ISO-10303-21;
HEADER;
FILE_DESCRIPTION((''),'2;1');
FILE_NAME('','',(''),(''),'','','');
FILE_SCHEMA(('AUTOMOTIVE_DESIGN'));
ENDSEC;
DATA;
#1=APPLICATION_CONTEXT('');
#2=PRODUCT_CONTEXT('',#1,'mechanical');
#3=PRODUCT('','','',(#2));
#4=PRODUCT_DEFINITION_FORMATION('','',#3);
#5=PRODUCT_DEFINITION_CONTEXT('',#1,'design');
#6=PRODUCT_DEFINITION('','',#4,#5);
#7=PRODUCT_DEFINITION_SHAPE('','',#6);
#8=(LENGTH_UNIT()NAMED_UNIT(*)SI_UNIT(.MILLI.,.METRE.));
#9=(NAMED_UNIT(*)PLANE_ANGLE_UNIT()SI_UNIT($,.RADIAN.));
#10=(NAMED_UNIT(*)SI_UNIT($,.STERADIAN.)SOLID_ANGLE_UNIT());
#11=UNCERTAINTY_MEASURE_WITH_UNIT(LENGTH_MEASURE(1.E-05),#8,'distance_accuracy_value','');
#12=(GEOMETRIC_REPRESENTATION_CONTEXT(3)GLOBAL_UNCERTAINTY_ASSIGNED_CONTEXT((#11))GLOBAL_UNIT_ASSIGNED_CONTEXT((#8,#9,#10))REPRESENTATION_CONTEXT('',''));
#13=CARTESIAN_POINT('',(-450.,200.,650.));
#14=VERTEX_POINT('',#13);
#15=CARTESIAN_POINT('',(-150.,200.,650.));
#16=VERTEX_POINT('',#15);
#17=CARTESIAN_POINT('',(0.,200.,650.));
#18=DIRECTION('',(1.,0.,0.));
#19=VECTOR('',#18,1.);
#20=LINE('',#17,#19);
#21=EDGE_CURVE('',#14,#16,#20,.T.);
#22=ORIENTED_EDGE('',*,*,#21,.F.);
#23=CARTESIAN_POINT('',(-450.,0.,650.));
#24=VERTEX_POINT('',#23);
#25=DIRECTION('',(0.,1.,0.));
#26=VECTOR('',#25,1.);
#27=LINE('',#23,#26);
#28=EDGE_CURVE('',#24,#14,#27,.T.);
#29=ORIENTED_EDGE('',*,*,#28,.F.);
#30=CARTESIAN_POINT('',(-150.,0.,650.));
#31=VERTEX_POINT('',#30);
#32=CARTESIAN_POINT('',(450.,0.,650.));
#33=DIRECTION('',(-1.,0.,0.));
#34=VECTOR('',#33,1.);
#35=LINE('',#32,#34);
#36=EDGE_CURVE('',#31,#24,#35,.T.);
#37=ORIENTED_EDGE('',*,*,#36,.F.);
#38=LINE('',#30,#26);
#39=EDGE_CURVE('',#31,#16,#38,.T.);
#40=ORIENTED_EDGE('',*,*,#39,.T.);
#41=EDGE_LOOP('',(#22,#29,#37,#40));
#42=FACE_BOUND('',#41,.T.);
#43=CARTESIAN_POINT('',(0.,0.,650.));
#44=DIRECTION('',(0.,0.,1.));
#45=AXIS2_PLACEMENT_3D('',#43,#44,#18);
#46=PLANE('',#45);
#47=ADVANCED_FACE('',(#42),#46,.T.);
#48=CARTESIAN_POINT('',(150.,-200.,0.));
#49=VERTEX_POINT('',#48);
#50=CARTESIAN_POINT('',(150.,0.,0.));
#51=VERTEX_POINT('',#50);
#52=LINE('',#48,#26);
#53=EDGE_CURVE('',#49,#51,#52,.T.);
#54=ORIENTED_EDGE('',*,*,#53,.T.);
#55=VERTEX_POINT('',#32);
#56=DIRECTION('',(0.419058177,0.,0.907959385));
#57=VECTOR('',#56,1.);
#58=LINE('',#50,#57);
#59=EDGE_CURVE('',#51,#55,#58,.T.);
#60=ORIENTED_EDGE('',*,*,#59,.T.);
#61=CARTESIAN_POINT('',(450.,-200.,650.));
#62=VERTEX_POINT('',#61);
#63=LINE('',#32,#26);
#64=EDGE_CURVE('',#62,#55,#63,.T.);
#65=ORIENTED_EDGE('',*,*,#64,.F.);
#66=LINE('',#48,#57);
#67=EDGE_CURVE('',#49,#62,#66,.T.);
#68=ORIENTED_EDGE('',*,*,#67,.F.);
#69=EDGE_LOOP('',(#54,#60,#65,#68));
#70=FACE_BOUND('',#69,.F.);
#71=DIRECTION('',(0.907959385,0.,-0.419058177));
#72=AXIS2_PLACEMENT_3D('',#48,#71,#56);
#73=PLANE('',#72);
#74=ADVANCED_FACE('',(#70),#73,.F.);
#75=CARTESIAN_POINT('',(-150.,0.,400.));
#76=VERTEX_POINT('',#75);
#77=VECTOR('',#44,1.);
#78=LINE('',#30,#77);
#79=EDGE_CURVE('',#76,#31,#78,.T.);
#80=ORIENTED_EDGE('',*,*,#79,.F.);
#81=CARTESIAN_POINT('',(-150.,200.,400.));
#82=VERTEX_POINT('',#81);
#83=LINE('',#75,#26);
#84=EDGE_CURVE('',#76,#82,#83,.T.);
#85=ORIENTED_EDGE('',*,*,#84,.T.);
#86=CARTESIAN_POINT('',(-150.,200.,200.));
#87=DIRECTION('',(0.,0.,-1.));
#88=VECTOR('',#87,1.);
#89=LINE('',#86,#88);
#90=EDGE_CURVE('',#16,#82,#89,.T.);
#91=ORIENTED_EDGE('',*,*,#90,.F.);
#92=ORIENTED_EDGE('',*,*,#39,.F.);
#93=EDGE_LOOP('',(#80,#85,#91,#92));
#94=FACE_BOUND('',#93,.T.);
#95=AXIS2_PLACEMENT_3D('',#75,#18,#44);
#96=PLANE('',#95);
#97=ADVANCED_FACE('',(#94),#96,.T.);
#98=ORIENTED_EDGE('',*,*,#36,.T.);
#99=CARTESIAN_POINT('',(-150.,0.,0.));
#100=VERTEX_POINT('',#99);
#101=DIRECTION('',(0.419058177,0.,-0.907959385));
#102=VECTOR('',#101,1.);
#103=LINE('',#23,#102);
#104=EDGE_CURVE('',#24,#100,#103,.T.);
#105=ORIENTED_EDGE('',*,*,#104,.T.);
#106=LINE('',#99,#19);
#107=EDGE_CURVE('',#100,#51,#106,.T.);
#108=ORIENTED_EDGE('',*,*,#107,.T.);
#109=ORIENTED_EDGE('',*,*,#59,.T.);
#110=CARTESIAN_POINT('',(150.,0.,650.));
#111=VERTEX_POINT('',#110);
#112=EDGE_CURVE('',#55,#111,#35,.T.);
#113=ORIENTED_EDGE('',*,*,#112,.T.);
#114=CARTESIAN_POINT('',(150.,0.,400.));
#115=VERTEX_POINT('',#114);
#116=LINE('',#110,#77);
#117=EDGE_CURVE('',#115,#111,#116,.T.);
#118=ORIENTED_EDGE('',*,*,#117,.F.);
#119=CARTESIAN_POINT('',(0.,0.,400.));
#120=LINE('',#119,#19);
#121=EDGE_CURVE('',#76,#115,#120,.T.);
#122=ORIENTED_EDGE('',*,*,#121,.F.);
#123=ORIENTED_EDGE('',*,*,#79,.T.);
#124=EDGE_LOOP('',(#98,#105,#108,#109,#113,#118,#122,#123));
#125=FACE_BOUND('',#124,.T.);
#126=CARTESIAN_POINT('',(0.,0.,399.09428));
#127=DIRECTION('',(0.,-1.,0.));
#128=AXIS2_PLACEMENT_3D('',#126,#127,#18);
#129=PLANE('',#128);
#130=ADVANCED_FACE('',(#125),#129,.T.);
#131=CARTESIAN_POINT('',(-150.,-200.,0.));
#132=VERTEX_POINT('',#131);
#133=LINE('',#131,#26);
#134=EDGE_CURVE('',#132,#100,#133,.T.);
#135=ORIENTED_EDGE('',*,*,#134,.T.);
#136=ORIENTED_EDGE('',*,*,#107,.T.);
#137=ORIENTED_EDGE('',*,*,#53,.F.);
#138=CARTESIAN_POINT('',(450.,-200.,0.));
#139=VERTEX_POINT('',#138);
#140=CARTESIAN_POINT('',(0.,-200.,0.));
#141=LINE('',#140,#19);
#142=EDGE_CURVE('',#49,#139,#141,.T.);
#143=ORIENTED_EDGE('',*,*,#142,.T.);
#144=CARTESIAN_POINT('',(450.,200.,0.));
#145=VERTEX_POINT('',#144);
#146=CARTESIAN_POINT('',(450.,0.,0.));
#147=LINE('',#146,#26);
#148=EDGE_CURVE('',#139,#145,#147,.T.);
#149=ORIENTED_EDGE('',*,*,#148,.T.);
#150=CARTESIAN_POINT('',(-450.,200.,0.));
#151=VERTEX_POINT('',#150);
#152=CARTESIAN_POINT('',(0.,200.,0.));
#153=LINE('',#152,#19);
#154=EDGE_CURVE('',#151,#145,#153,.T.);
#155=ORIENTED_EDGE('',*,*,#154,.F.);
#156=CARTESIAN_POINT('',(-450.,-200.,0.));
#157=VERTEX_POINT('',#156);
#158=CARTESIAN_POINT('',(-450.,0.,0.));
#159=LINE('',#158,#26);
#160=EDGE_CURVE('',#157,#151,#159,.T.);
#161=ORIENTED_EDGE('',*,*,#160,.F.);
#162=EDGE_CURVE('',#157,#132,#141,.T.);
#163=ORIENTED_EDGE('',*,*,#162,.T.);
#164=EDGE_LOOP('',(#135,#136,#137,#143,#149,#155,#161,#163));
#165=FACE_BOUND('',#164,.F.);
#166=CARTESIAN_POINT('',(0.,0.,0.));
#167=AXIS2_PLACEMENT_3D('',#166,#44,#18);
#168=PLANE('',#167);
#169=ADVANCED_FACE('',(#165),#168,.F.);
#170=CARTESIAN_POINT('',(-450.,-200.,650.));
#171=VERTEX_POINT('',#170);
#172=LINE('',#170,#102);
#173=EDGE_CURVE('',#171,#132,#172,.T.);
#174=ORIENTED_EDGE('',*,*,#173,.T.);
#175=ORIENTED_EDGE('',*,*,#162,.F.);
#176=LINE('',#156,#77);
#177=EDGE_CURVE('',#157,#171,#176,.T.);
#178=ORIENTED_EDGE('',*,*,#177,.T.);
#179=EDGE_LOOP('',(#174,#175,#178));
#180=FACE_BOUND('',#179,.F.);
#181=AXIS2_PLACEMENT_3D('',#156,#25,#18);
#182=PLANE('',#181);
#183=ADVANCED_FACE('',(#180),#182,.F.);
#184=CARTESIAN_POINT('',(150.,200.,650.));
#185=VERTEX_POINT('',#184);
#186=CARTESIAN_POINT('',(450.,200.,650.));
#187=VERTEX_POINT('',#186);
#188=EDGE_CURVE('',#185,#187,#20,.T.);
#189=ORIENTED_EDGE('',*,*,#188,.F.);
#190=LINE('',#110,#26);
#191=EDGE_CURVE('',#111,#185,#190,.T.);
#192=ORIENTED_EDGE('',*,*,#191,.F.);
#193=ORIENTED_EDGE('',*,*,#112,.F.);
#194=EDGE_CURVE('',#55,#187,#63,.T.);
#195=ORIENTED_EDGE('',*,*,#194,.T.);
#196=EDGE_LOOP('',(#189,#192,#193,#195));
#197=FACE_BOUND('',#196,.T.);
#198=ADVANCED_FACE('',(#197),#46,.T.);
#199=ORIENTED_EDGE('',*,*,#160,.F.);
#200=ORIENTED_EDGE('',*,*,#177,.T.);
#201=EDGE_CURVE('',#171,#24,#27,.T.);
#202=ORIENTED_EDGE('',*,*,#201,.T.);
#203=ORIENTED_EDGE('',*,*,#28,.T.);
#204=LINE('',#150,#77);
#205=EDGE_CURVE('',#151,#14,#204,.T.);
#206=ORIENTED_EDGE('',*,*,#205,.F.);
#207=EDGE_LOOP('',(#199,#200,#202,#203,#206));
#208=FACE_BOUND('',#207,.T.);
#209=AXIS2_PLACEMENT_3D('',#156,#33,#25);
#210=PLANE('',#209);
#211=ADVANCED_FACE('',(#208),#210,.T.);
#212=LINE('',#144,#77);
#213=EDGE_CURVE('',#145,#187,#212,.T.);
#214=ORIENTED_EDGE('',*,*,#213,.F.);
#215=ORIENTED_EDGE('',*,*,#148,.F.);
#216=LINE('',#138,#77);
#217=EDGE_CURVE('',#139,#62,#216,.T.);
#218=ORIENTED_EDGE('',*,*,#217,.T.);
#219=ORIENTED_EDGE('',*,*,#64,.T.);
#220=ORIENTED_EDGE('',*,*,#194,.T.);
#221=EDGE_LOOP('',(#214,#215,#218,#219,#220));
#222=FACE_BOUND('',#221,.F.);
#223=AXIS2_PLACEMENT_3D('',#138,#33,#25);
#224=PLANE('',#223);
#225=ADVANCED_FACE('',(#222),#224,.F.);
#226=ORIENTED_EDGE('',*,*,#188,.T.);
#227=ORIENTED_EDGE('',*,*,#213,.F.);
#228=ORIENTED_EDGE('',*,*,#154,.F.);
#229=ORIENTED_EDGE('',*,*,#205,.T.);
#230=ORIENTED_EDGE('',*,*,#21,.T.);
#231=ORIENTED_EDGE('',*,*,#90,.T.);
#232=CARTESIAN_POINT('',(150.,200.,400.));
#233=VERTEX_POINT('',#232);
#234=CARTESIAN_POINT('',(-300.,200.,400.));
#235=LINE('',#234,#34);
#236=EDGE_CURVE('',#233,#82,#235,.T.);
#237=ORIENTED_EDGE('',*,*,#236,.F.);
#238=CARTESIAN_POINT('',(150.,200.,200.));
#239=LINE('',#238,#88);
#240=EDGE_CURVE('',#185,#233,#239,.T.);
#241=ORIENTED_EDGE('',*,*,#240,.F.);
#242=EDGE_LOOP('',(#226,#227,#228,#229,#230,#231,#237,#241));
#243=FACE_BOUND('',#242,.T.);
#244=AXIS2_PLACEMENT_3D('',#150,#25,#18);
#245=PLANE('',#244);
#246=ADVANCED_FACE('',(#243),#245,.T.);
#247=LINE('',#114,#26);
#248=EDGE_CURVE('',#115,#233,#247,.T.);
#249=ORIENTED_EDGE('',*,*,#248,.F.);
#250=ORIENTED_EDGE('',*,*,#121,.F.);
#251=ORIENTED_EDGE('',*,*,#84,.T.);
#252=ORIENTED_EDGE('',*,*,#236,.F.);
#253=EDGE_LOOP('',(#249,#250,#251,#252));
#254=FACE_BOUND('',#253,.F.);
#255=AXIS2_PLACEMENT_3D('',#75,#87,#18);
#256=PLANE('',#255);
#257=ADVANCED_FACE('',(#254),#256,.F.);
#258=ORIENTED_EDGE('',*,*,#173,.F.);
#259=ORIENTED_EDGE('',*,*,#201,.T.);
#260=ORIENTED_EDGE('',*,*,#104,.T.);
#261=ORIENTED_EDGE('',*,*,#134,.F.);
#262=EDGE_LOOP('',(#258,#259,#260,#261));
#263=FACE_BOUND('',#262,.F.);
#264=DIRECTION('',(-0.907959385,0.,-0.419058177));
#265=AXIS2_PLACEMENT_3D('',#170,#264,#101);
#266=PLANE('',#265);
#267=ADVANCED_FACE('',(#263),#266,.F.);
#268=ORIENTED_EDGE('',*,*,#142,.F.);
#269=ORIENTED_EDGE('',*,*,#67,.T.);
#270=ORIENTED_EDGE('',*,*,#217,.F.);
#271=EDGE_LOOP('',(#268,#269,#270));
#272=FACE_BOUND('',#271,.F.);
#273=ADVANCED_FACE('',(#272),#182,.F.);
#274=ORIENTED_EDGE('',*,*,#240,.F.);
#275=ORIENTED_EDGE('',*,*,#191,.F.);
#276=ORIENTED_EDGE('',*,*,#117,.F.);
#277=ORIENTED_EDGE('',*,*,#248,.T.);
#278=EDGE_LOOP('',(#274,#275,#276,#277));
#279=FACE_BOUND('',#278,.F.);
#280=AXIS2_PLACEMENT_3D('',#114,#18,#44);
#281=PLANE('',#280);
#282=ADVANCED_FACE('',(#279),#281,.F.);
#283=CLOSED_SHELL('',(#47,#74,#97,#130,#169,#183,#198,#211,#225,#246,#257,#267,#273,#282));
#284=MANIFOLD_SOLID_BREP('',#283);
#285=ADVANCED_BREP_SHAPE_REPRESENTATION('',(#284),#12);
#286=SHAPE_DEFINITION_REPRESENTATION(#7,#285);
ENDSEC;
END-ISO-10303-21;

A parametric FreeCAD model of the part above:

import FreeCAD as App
import Part
import Sketcher
from FreeCAD import Vector
Q = App.Units.Quantity


def add_polygon(sketch, points):
    """Adds a closed chain of lines whose ends are joined by coincident constraints."""
    first, n = sketch.GeometryCount, len(points)
    for a, b in zip(points, points[1:] + points[:1]):
        sketch.addGeometry(Part.LineSegment(App.Vector(*a, 0), App.Vector(*b, 0)), False)
    for i in range(n):
        sketch.addConstraint(Sketcher.Constraint("Coincident", first + i, 2, first + (i + 1) % n, 1))

doc = App.newDocument("Part")
body = doc.addObject("PartDesign::Body", "Body")

# Sketch on XY plane
sketch1 = doc.addObject("Sketcher::SketchObject", "Sketch")
body.addObject(sketch1)
sketch1.AttachmentSupport = (doc.XY_Plane, [""])
sketch1.MapMode = "FlatFace"
add_polygon(sketch1, [(-450, 200), (-450, -200), (450, -200), (450, 200)])  # lines 0-3
sketch1.addConstraint(Sketcher.Constraint("Vertical", 0))
sketch1.addConstraint(Sketcher.Constraint("Horizontal", 1))
sketch1.addConstraint(Sketcher.Constraint("Vertical", 2))
sketch1.addConstraint(Sketcher.Constraint("Horizontal", 3))
sketch1.addConstraint(Sketcher.Constraint("Symmetric", 0, 2, 2, 2, -1, 1))
sketch1.addConstraint(Sketcher.Constraint("DistanceX", 1, 1, 1, 2, Q("900 mm")))
sketch1.addConstraint(Sketcher.Constraint("DistanceY", 0, 2, 0, 1, Q("400 mm")))
pad1 = doc.addObject("PartDesign::Pad", "Pad")
body.addObject(pad1)
pad1.Profile = sketch1
pad1.Length = 650

# Sketch on XZ plane
sketch2 = doc.addObject("Sketcher::SketchObject", "Sketch001")
body.addObject(sketch2)
sketch2.AttachmentSupport = (doc.XZ_Plane, [""])
sketch2.MapMode = "FlatFace"
sketch2.AttachmentOffset = App.Placement(Vector(0, 0, 200), App.Rotation())
add_polygon(sketch2, [(450, 650), (-450, 650), (-150, 0), (150, 0)])  # lines 0-3
sketch2.addConstraint(Sketcher.Constraint("Horizontal", 0))
sketch2.addConstraint(Sketcher.Constraint("Horizontal", 2))
sketch2.addConstraint(Sketcher.Constraint("Symmetric", 1, 2, 2, 2, -1, 1))
sketch2.addConstraint(Sketcher.Constraint("Equal", 1, 3))
sketch2.addConstraint(Sketcher.Constraint("DistanceX", 0, 2, 0, 1, Q("900 mm")))
sketch2.addConstraint(Sketcher.Constraint("DistanceX", 2, 1, 2, 2, Q("300 mm")))
sketch2.addConstraint(Sketcher.Constraint("DistanceY", -1, 1, 0, 2, Q("650 mm")))
pocket1 = doc.addObject("PartDesign::Pocket", "Pocket")
body.addObject(pocket1)
pocket1.Profile = sketch2
pocket1.Length = 200

# Sketch on XZ plane
sketch3 = doc.addObject("Sketcher::SketchObject", "Sketch002")
body.addObject(sketch3)
sketch3.AttachmentSupport = (doc.XZ_Plane, [""])
sketch3.MapMode = "FlatFace"
add_polygon(sketch3, [(-150, 900), (-150, 400), (150, 400), (150, 900)])  # lines 0-3
sketch3.addConstraint(Sketcher.Constraint("Vertical", 0))
sketch3.addConstraint(Sketcher.Constraint("Horizontal", 1))
sketch3.addConstraint(Sketcher.Constraint("Vertical", 2))
sketch3.addConstraint(Sketcher.Constraint("Horizontal", 3))
sketch3.addConstraint(Sketcher.Constraint("DistanceX", 1, 1, 1, 2, Q("300 mm")))
sketch3.addConstraint(Sketcher.Constraint("DistanceY", 0, 2, 0, 1, Q("500 mm")))
sketch3.addConstraint(Sketcher.Constraint("DistanceX", 0, 2, -1, 1, Q("150 mm")))
sketch3.addConstraint(Sketcher.Constraint("DistanceY", -1, 1, 0, 2, Q("400 mm")))
pocket2 = doc.addObject("PartDesign::Pocket", "Pocket001")
body.addObject(pocket2)
pocket2.Profile = sketch3
pocket2.Type = "ThroughAll"

doc.recompute()
